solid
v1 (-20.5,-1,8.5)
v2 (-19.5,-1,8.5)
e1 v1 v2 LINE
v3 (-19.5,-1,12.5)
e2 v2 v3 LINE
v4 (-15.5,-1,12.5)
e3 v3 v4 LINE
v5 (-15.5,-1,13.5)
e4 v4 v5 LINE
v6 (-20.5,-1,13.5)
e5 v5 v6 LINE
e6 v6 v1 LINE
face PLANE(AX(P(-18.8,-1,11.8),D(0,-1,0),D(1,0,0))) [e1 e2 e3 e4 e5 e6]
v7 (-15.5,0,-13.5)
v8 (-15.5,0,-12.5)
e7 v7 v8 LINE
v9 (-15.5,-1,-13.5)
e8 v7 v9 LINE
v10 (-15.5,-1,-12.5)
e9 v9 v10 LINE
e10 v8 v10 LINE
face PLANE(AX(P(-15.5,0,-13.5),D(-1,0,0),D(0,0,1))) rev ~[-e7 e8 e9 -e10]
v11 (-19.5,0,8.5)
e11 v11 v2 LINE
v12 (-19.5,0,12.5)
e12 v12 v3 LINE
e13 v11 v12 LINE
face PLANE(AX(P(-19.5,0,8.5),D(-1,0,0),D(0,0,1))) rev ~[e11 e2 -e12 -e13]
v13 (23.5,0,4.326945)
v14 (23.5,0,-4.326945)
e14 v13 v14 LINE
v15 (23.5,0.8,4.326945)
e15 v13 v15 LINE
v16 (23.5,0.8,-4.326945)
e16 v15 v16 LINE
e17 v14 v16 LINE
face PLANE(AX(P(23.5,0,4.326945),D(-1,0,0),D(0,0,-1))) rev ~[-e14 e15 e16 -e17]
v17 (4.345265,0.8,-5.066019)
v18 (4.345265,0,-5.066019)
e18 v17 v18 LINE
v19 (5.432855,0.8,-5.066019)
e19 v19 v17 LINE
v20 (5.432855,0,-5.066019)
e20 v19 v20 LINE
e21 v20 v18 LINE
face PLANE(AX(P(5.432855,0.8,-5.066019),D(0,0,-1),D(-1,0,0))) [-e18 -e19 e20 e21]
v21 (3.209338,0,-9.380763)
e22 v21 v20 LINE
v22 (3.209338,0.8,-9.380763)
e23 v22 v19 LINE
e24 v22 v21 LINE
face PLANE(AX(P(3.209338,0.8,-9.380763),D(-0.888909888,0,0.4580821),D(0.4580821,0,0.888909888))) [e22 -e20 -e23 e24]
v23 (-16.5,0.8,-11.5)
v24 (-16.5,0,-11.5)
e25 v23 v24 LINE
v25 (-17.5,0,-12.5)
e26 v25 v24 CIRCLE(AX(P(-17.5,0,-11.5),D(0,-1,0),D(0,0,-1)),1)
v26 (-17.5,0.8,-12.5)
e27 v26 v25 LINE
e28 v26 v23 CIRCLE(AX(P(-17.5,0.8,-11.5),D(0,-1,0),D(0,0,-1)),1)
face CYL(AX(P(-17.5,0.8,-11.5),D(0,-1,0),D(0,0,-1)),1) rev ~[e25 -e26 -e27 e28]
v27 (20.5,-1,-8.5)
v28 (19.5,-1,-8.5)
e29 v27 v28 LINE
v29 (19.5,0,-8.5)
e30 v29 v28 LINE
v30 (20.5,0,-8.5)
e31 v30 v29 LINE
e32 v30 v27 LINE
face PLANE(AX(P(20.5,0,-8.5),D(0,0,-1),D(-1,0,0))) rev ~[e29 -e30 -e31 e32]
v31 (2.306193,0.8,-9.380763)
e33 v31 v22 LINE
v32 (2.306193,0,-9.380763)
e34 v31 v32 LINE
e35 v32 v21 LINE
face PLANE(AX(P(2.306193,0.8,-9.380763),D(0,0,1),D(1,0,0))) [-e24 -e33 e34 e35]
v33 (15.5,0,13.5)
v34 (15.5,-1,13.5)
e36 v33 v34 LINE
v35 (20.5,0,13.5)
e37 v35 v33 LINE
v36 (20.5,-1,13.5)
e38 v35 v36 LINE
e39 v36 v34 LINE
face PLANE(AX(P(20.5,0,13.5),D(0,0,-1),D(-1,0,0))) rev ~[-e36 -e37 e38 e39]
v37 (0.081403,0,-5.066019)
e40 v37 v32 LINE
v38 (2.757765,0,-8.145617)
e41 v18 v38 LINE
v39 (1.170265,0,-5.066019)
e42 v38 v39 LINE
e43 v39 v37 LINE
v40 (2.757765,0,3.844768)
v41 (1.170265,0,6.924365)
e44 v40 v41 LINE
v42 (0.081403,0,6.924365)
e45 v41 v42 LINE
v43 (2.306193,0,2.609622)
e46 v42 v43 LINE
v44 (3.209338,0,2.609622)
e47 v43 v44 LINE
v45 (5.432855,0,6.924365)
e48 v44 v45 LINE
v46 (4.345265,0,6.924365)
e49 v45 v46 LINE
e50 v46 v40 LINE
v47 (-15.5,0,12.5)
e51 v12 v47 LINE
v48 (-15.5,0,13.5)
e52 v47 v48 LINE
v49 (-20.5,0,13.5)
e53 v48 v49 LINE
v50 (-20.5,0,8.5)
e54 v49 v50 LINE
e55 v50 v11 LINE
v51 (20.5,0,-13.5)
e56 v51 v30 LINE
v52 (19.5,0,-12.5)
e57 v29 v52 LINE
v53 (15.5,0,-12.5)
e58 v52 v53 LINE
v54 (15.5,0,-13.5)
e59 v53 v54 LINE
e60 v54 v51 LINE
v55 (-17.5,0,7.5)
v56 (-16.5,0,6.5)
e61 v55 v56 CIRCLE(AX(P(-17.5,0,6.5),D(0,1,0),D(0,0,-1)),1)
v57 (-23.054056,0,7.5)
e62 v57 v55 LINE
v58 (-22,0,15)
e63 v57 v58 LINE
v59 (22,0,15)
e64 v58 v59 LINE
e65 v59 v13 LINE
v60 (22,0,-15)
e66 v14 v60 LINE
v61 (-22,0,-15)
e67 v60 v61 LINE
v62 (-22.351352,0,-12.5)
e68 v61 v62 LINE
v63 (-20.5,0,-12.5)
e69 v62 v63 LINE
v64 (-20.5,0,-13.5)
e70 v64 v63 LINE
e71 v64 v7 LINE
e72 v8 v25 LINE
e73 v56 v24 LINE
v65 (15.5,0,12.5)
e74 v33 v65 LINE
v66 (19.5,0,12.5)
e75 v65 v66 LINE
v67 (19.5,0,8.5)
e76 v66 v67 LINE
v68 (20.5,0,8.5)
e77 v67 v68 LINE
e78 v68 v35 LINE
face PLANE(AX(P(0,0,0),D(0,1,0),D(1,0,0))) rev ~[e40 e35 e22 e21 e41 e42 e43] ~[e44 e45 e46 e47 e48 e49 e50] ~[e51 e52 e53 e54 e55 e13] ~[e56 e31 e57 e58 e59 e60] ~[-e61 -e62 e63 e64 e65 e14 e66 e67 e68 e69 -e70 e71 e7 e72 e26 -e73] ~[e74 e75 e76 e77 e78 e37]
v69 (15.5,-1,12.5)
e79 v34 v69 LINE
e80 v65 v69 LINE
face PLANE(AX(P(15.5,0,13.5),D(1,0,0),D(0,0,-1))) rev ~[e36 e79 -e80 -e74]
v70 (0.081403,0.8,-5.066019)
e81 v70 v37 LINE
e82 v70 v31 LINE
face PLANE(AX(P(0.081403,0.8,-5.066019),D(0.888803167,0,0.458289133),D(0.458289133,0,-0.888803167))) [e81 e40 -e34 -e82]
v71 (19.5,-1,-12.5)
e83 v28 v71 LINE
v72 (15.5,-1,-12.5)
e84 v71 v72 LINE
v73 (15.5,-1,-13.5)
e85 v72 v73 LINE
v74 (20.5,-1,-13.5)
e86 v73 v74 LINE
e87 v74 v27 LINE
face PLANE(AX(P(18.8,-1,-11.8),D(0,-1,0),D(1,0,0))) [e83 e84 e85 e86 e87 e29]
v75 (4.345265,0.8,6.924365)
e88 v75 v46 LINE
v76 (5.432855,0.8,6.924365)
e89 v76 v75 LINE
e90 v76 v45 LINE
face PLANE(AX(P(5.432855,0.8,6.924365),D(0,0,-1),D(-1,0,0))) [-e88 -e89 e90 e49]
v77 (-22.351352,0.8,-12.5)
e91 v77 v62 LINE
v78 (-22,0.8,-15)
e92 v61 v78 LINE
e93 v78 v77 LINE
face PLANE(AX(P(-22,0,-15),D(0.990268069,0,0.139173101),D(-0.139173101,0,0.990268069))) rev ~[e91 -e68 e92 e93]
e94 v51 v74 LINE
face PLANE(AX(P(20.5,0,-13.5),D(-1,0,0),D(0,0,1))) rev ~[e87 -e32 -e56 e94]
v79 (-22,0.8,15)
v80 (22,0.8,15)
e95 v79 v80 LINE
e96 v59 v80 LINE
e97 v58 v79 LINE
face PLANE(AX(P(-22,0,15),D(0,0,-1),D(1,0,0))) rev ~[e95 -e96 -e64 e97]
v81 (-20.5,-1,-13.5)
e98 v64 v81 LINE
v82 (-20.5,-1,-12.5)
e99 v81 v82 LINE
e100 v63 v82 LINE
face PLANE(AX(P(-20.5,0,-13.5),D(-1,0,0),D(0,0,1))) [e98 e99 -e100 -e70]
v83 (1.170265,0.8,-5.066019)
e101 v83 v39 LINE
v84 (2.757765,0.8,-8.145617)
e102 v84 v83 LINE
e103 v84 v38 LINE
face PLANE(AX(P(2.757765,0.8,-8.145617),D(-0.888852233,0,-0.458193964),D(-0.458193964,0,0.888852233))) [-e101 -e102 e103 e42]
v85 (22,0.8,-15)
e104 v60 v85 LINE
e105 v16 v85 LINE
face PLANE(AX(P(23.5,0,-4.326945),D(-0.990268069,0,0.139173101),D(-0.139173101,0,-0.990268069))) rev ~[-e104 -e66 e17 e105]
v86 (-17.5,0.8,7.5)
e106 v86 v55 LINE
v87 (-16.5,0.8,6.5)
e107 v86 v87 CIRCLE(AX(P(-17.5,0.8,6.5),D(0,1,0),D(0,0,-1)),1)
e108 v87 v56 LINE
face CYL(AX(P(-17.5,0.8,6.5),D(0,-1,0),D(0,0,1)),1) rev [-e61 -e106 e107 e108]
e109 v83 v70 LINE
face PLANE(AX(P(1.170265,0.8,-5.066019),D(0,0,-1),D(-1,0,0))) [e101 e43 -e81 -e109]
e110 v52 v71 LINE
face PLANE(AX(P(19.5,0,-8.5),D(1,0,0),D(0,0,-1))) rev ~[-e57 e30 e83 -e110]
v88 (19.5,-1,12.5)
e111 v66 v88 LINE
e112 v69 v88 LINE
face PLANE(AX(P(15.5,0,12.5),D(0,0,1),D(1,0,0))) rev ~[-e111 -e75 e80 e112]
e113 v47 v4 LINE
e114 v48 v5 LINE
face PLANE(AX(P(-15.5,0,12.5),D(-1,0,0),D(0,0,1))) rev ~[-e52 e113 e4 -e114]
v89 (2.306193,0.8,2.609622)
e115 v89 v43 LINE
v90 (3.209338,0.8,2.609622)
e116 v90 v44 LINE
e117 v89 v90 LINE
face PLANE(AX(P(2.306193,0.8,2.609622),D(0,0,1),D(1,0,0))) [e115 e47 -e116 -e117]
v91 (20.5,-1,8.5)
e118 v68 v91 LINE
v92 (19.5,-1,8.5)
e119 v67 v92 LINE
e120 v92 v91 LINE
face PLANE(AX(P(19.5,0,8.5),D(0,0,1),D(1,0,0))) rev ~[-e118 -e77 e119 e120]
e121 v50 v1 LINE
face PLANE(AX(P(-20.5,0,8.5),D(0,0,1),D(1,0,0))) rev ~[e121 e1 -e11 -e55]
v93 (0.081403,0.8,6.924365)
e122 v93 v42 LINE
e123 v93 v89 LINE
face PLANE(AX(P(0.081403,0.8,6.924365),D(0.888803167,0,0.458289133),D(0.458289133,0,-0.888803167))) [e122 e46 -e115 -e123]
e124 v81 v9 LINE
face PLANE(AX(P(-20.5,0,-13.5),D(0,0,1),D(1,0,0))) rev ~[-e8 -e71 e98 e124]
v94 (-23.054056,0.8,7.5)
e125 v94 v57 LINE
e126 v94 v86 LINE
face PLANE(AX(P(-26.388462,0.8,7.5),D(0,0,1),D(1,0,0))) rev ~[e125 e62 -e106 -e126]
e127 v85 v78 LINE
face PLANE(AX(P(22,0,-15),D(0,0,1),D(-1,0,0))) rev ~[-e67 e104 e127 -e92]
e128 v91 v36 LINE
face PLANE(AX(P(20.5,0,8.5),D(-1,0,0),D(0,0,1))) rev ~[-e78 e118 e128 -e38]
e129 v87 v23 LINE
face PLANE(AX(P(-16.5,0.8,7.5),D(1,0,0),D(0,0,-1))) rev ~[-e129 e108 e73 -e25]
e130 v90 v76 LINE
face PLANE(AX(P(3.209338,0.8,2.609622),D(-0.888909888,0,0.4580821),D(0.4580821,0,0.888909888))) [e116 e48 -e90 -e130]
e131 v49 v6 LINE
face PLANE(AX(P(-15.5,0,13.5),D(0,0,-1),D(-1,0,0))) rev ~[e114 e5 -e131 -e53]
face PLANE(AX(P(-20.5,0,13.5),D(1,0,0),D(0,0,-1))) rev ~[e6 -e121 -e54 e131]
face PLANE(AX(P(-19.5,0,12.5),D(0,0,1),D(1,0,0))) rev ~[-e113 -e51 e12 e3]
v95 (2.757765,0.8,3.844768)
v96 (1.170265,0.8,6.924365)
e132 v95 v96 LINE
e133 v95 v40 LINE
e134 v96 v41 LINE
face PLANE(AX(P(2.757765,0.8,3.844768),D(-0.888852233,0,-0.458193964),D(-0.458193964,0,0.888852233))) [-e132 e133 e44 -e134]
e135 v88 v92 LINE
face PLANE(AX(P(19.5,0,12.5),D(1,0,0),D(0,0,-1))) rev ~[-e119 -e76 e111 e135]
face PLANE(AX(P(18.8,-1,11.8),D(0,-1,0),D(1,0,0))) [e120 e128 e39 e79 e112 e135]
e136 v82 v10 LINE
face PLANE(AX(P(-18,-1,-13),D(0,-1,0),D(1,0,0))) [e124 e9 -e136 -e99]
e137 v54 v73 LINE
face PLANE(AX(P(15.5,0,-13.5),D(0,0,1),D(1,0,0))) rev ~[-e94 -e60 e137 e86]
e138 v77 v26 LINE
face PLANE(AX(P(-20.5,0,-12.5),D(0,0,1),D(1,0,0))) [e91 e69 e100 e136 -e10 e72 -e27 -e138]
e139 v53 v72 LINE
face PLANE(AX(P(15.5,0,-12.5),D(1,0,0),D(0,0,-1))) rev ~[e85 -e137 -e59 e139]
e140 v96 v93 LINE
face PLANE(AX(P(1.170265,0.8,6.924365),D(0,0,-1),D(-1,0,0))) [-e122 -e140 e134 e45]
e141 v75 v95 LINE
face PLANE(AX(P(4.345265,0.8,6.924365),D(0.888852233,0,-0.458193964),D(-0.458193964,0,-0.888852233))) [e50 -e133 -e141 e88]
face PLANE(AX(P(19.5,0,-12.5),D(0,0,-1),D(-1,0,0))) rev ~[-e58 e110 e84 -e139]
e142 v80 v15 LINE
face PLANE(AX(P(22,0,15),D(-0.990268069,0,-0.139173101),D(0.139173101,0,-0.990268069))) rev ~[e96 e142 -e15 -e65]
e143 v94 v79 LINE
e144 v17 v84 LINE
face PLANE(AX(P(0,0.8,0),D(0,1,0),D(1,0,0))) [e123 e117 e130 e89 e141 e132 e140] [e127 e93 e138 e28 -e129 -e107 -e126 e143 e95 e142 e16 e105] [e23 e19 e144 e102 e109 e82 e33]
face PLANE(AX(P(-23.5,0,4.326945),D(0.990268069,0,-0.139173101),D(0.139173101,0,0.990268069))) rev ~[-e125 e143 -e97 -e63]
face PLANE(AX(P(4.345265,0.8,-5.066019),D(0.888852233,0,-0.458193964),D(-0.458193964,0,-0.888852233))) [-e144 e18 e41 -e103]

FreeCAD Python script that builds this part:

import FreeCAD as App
import Part
import Sketcher
Q = App.Units.Quantity


def edges_at(feature, points):
    """Names of the edges that pass closest to the given points."""
    edges = feature.Shape.Edges
    near = lambda p: min(range(len(edges)), key=lambda i: edges[i].distToShape(Part.Vertex(*p))[0])
    return sorted({f"Edge{near(p) + 1}" for p in points})

doc = App.newDocument("Part")
body = doc.addObject("PartDesign::Body", "Body")

sketch1 = body.newObject("Sketcher::SketchObject", "Sketch")
sketch1.AttachmentSupport = (doc.getObject("XZ_Plane"), [""])
sketch1.MapMode = "FlatFace"
sketch1.addGeometry([
    Part.LineSegment(App.Vector(-22, -15, 0), App.Vector(-24, -4, 0)),
    Part.LineSegment(App.Vector(-24, -4, 0), App.Vector(-24, 4, 0)),
    Part.LineSegment(App.Vector(-24, 4, 0), App.Vector(-22, 15, 0)),
    Part.LineSegment(App.Vector(-22, 15, 0), App.Vector(22, 15, 0)),
    Part.LineSegment(App.Vector(22, 15, 0), App.Vector(24, 4, 0)),
    Part.LineSegment(App.Vector(24, 4, 0), App.Vector(24, -4, 0)),
    Part.LineSegment(App.Vector(24, -4, 0), App.Vector(22, -15, 0)),
    Part.LineSegment(App.Vector(22, -15, 0), App.Vector(-22, -15, 0)),
], False)
sketch1.addConstraint([
    Sketcher.Constraint("Coincident", 0, 2, 1, 1),
    Sketcher.Constraint("Coincident", 1, 2, 2, 1),
    Sketcher.Constraint("Coincident", 2, 2, 3, 1),
    Sketcher.Constraint("Coincident", 3, 2, 4, 1),
    Sketcher.Constraint("Coincident", 4, 2, 5, 1),
    Sketcher.Constraint("Coincident", 5, 2, 6, 1),
    Sketcher.Constraint("Coincident", 6, 2, 7, 1),
    Sketcher.Constraint("Coincident", 7, 2, 0, 1),
    Sketcher.Constraint("Vertical", 1),
    Sketcher.Constraint("Horizontal", 3),
    Sketcher.Constraint("Vertical", 5),
    Sketcher.Constraint("Horizontal", 7),
    Sketcher.Constraint("Symmetric", 0, 2, 4, 2, -1, 1),
    Sketcher.Constraint("Symmetric", 2, 2, 6, 2, -1, 1),
    Sketcher.Constraint("Parallel", 0, 4),
    Sketcher.Constraint("Parallel", 2, 6),
    Sketcher.Constraint("Horizontal", 1, 2, 4, 2),
    Sketcher.Constraint("Vertical", 3, 2, 6, 2),
    Sketcher.Constraint("DistanceX", 3, 1, 3, 2, 44.0),
    Sketcher.Constraint("Angle", 0, Q("98 deg")),
    Sketcher.Constraint("DistanceY", -1, 1, 2, 2, 15.0),
    Sketcher.Constraint("DistanceX", 1, 2, 4, 2, 47.0),
])
pad1 = body.newObject("PartDesign::Pad", "Pad")
pad1.Profile = sketch1
pad1.Length = 0.8
pad1.Reversed = True

sketch2 = body.newObject("Sketcher::SketchObject", "Sketch001")
sketch2.AttachmentSupport = (doc.getObject("XZ_Plane"), [""])
sketch2.MapMode = "FlatFace"
sketch2.AttachmentOffset = App.Placement(App.Vector(0, 0, -0.8), App.Rotation())
sketch2.addGeometry([
    Part.LineSegment(App.Vector(-26, -12, 0), App.Vector(-26, 8, 0)),
    Part.LineSegment(App.Vector(-26, 8, 0), App.Vector(-16, 8, 0)),
    Part.LineSegment(App.Vector(-16, 8, 0), App.Vector(-16, -12, 0)),
    Part.LineSegment(App.Vector(-16, -12, 0), App.Vector(-26, -12, 0)),
], False)
sketch2.addConstraint([
    Sketcher.Constraint("Coincident", 0, 2, 1, 1),
    Sketcher.Constraint("Coincident", 1, 2, 2, 1),
    Sketcher.Constraint("Coincident", 2, 2, 3, 1),
    Sketcher.Constraint("Coincident", 3, 2, 0, 1),
    Sketcher.Constraint("Vertical", 0),
    Sketcher.Constraint("Horizontal", 1),
    Sketcher.Constraint("Vertical", 2),
    Sketcher.Constraint("Horizontal", 3),
    Sketcher.Constraint("DistanceY", 0, 1, 0, 2, 20.0),
    Sketcher.Constraint("DistanceY", -1, 1, 0, 2, 7.5),
    Sketcher.Constraint("DistanceX", 1, 2, -1, 1, 16.5),
    Sketcher.Constraint("DistanceX", 1, 1, 1, 2, 9.888462),
])
pocket1 = body.newObject("PartDesign::Pocket", "Pocket")
pocket1.Profile = sketch2
pocket1.Length = 0.8
pocket1.Reversed = True
doc.recompute()

fillet = body.newObject("PartDesign::Fillet", "Fillet")
fillet.Base = (pocket1, edges_at(pocket1, [(-16.5, 0.4, 7.5)]))
fillet.Radius = 1

sketch3 = body.newObject("Sketcher::SketchObject", "Sketch002")
sketch3.AttachmentSupport = (doc.getObject("XZ_Plane"), [""])
sketch3.MapMode = "FlatFace"
sketch3.addGeometry([
    Part.LineSegment(App.Vector(-20.5, 13.5, 0), App.Vector(-20.5, 8.5, 0)),
    Part.LineSegment(App.Vector(-20.5, 8.5, 0), App.Vector(-19.5, 8.5, 0)),
    Part.LineSegment(App.Vector(-19.5, 8.5, 0), App.Vector(-19.5, 12.5, 0)),
    Part.LineSegment(App.Vector(-19.5, 12.5, 0), App.Vector(-15.5, 12.5, 0)),
    Part.LineSegment(App.Vector(-15.5, 12.5, 0), App.Vector(-15.5, 13.5, 0)),
    Part.LineSegment(App.Vector(-15.5, 13.5, 0), App.Vector(-20.5, 13.5, 0)),
    Part.LineSegment(App.Vector(15.5, 13.5, 0), App.Vector(15.5, 12.5, 0)),
    Part.LineSegment(App.Vector(15.5, 12.5, 0), App.Vector(19.5, 12.5, 0)),
    Part.LineSegment(App.Vector(19.5, 12.5, 0), App.Vector(19.5, 8.5, 0)),
    Part.LineSegment(App.Vector(19.5, 8.5, 0), App.Vector(20.5, 8.5, 0)),
    Part.LineSegment(App.Vector(20.5, 8.5, 0), App.Vector(20.5, 13.5, 0)),
    Part.LineSegment(App.Vector(20.5, 13.5, 0), App.Vector(15.5, 13.5, 0)),
    Part.LineSegment(App.Vector(20.5, -13.5, 0), App.Vector(20.5, -8.5, 0)),
    Part.LineSegment(App.Vector(20.5, -8.5, 0), App.Vector(19.5, -8.5, 0)),
    Part.LineSegment(App.Vector(19.5, -8.5, 0), App.Vector(19.5, -12.5, 0)),
    Part.LineSegment(App.Vector(19.5, -12.5, 0), App.Vector(15.5, -12.5, 0)),
    Part.LineSegment(App.Vector(15.5, -12.5, 0), App.Vector(15.5, -13.5, 0)),
    Part.LineSegment(App.Vector(15.5, -13.5, 0), App.Vector(20.5, -13.5, 0)),
], False)
sketch3.addConstraint([
    Sketcher.Constraint("Coincident", 0, 2, 1, 1),
    Sketcher.Constraint("Coincident", 1, 2, 2, 1),
    Sketcher.Constraint("Coincident", 2, 2, 3, 1),
    Sketcher.Constraint("Coincident", 3, 2, 4, 1),
    Sketcher.Constraint("Coincident", 4, 2, 5, 1),
    Sketcher.Constraint("Coincident", 5, 2, 0, 1),
    Sketcher.Constraint("Coincident", 6, 2, 7, 1),
    Sketcher.Constraint("Coincident", 7, 2, 8, 1),
    Sketcher.Constraint("Coincident", 8, 2, 9, 1),
    Sketcher.Constraint("Coincident", 9, 2, 10, 1),
    Sketcher.Constraint("Coincident", 10, 2, 11, 1),
    Sketcher.Constraint("Coincident", 11, 2, 6, 1),
    Sketcher.Constraint("Coincident", 12, 2, 13, 1),
    Sketcher.Constraint("Coincident", 13, 2, 14, 1),
    Sketcher.Constraint("Coincident", 14, 2, 15, 1),
    Sketcher.Constraint("Coincident", 15, 2, 16, 1),
    Sketcher.Constraint("Coincident", 16, 2, 17, 1),
    Sketcher.Constraint("Coincident", 17, 2, 12, 1),
    Sketcher.Constraint("Vertical", 0),
    Sketcher.Constraint("Horizontal", 1),
    Sketcher.Constraint("Vertical", 2),
    Sketcher.Constraint("Horizontal", 3),
    Sketcher.Constraint("Vertical", 4),
    Sketcher.Constraint("Horizontal", 5),
    Sketcher.Constraint("Vertical", 6),
    Sketcher.Constraint("Horizontal", 7),
    Sketcher.Constraint("Vertical", 8),
    Sketcher.Constraint("Horizontal", 9),
    Sketcher.Constraint("Vertical", 10),
    Sketcher.Constraint("Horizontal", 11),
    Sketcher.Constraint("Vertical", 12),
    Sketcher.Constraint("Horizontal", 13),
    Sketcher.Constraint("Vertical", 14),
    Sketcher.Constraint("Horizontal", 15),
    Sketcher.Constraint("Vertical", 16),
    Sketcher.Constraint("Horizontal", 17),
    Sketcher.Constraint("Symmetric", 0, 2, 12, 2, -1, 1),
    Sketcher.Constraint("Symmetric", 2, 2, 14, 2, -1, 1),
    Sketcher.Constraint("Symmetric", 4, 2, 16, 2, -1, 1),
    Sketcher.Constraint("Symmetric", 3, 2, 6, 2, -2),
    Sketcher.Constraint("Symmetric", 1, 2, 8, 2, -2),
    Sketcher.Constraint("Symmetric", 5, 2, 10, 2, -2),
    Sketcher.Constraint("Equal", 17, 0),
    Sketcher.Constraint("Equal", 15, 2),
    Sketcher.Constraint("DistanceX", 1, 1, 1, 2, 1.0),
    Sketcher.Constraint("DistanceX", 3, 1, 3, 2, 4.0),
    Sketcher.Constraint("DistanceX", 3, 2, 6, 2, 31.0),
    Sketcher.Constraint("DistanceY", 12, 2, 9, 2, 17.0),
])
pad2 = body.newObject("PartDesign::Pad", "Pad001")
pad2.Profile = sketch3
pad2.Length = 1

sketch4 = body.newObject("Sketcher::SketchObject", "Sketch003")
sketch4.AttachmentSupport = (doc.getObject("XZ_Plane"), [""])
sketch4.MapMode = "FlatFace"
sketch4.addGeometry([
    Part.LineSegment(App.Vector(-20.5, -12.5, 0), App.Vector(-20.5, -13.5, 0)),
    Part.LineSegment(App.Vector(-20.5, -13.5, 0), App.Vector(-15.5, -13.5, 0)),
    Part.LineSegment(App.Vector(-15.5, -13.5, 0), App.Vector(-15.5, -12.5, 0)),
    Part.LineSegment(App.Vector(-15.5, -12.5, 0), App.Vector(-20.5, -12.5, 0)),
], False)
sketch4.addConstraint([
    Sketcher.Constraint("Coincident", 0, 2, 1, 1),
    Sketcher.Constraint("Coincident", 1, 2, 2, 1),
    Sketcher.Constraint("Coincident", 2, 2, 3, 1),
    Sketcher.Constraint("Coincident", 3, 2, 0, 1),
    Sketcher.Constraint("Vertical", 0),
    Sketcher.Constraint("Horizontal", 1),
    Sketcher.Constraint("Vertical", 2),
    Sketcher.Constraint("Horizontal", 3),
    Sketcher.Constraint("DistanceX", 1, 1, 1, 2, 5.0),
    Sketcher.Constraint("DistanceY", 0, 2, 0, 1, 1.0),
    Sketcher.Constraint("DistanceX", 0, 2, -1, 1, 20.5),
    Sketcher.Constraint("DistanceY", 0, 2, -1, 1, 13.5),
])
pad3 = body.newObject("PartDesign::Pad", "Pad002")
pad3.Profile = sketch4
pad3.Length = 1
doc.recompute()

fillet2 = body.newObject("PartDesign::Fillet", "Fillet001")
fillet2.Base = (pad3, edges_at(pad3, [(-16.5, 0.4, -12.5)]))
fillet2.Radius = 1

sketch5 = body.newObject("Sketcher::SketchObject", "Sketch004")
sketch5.AttachmentSupport = (doc.getObject("XZ_Plane"), [""])
sketch5.MapMode = "FlatFace"
sketch5.AttachmentOffset = App.Placement(App.Vector(0, 0, -0.8), App.Rotation())
sketch5.addGeometry([
    Part.LineSegment(App.Vector(0.1, -5.1, 0), App.Vector(1.2, -5.1, 0)),
    Part.LineSegment(App.Vector(1.2, -5.1, 0), App.Vector(2.8, -8.1, 0)),
    Part.LineSegment(App.Vector(2.8, -8.1, 0), App.Vector(4.3, -5.1, 0)),
    Part.LineSegment(App.Vector(4.3, -5.1, 0), App.Vector(5.4, -5.1, 0)),
    Part.LineSegment(App.Vector(5.4, -5.1, 0), App.Vector(3.2, -9.4, 0)),
    Part.LineSegment(App.Vector(3.2, -9.4, 0), App.Vector(2.3, -9.4, 0)),
    Part.LineSegment(App.Vector(2.3, -9.4, 0), App.Vector(0.1, -5.1, 0)),
    Part.LineSegment(App.Vector(0.1, 6.9, 0), App.Vector(1.2, 6.9, 0)),
    Part.LineSegment(App.Vector(1.2, 6.9, 0), App.Vector(2.8, 3.8, 0)),
    Part.LineSegment(App.Vector(2.8, 3.8, 0), App.Vector(4.3, 6.9, 0)),
    Part.LineSegment(App.Vector(4.3, 6.9, 0), App.Vector(5.4, 6.9, 0)),
    Part.LineSegment(App.Vector(5.4, 6.9, 0), App.Vector(3.2, 2.6, 0)),
    Part.LineSegment(App.Vector(3.2, 2.6, 0), App.Vector(2.3, 2.6, 0)),
    Part.LineSegment(App.Vector(2.3, 2.6, 0), App.Vector(0.1, 6.9, 0)),
], False)
sketch5.addConstraint([
    Sketcher.Constraint("Coincident", 0, 2, 1, 1),
    Sketcher.Constraint("Coincident", 1, 2, 2, 1),
    Sketcher.Constraint("Coincident", 2, 2, 3, 1),
    Sketcher.Constraint("Coincident", 3, 2, 4, 1),
    Sketcher.Constraint("Coincident", 4, 2, 5, 1),
    Sketcher.Constraint("Coincident", 5, 2, 6, 1),
    Sketcher.Constraint("Coincident", 6, 2, 0, 1),
    Sketcher.Constraint("Coincident", 7, 2, 8, 1),
    Sketcher.Constraint("Coincident", 8, 2, 9, 1),
    Sketcher.Constraint("Coincident", 9, 2, 10, 1),
    Sketcher.Constraint("Coincident", 10, 2, 11, 1),
    Sketcher.Constraint("Coincident", 11, 2, 12, 1),
    Sketcher.Constraint("Coincident", 12, 2, 13, 1),
    Sketcher.Constraint("Coincident", 13, 2, 7, 1),
    Sketcher.Constraint("Horizontal", 0),
    Sketcher.Constraint("Horizontal", 3),
    Sketcher.Constraint("Horizontal", 5),
    Sketcher.Constraint("Horizontal", 7),
    Sketcher.Constraint("Horizontal", 10),
    Sketcher.Constraint("Horizontal", 12),
    Sketcher.Constraint("Parallel", 1, 8),
    Sketcher.Constraint("Parallel", 2, 9),
    Sketcher.Constraint("Parallel", 4, 11),
    Sketcher.Constraint("Parallel", 6, 13),
    Sketcher.Constraint("Horizontal", 0, 2, 2, 2),
    Sketcher.Constraint("Horizontal", 7, 2, 9, 2),
    Sketcher.Constraint("Vertical", 0, 2, 7, 2),
    Sketcher.Constraint("Vertical", 1, 2, 8, 2),
    Sketcher.Constraint("Vertical", 3, 2, 10, 2),
    Sketcher.Constraint("Vertical", 4, 2, 11, 2),
    Sketcher.Constraint("Vertical", 5, 2, 12, 2),
    Sketcher.Constraint("Equal", 1, 2),
    Sketcher.Constraint("DistanceX", 0, 2, 2, 2, 3.175),
    Sketcher.Constraint("DistanceX", 3, 1, 3, 2, 1.08759),
    Sketcher.Constraint("Distance", 1, 3.46469),
    Sketcher.Constraint("Distance", 4, 4.853972),
    Sketcher.Constraint("DistanceX", 0, 1, 0, 2, 1.088862),
    Sketcher.Constraint("DistanceX", 5, 2, 5, 1, 0.903145),
    Sketcher.Constraint("DistanceY", 0, 2, -1, 1, 5.066019),
    Sketcher.Constraint("DistanceY", -1, 1, 11, 2, 2.609622),
    Sketcher.Constraint("DistanceX", 6, 2, 5, 2, 2.22479),
    Sketcher.Constraint("DistanceX", -1, 1, 0, 2, 1.170265),
])
pocket2 = body.newObject("PartDesign::Pocket", "Pocket001")
pocket2.Profile = sketch5
pocket2.Length = 10
pocket2.Reversed = True

doc.recompute()
